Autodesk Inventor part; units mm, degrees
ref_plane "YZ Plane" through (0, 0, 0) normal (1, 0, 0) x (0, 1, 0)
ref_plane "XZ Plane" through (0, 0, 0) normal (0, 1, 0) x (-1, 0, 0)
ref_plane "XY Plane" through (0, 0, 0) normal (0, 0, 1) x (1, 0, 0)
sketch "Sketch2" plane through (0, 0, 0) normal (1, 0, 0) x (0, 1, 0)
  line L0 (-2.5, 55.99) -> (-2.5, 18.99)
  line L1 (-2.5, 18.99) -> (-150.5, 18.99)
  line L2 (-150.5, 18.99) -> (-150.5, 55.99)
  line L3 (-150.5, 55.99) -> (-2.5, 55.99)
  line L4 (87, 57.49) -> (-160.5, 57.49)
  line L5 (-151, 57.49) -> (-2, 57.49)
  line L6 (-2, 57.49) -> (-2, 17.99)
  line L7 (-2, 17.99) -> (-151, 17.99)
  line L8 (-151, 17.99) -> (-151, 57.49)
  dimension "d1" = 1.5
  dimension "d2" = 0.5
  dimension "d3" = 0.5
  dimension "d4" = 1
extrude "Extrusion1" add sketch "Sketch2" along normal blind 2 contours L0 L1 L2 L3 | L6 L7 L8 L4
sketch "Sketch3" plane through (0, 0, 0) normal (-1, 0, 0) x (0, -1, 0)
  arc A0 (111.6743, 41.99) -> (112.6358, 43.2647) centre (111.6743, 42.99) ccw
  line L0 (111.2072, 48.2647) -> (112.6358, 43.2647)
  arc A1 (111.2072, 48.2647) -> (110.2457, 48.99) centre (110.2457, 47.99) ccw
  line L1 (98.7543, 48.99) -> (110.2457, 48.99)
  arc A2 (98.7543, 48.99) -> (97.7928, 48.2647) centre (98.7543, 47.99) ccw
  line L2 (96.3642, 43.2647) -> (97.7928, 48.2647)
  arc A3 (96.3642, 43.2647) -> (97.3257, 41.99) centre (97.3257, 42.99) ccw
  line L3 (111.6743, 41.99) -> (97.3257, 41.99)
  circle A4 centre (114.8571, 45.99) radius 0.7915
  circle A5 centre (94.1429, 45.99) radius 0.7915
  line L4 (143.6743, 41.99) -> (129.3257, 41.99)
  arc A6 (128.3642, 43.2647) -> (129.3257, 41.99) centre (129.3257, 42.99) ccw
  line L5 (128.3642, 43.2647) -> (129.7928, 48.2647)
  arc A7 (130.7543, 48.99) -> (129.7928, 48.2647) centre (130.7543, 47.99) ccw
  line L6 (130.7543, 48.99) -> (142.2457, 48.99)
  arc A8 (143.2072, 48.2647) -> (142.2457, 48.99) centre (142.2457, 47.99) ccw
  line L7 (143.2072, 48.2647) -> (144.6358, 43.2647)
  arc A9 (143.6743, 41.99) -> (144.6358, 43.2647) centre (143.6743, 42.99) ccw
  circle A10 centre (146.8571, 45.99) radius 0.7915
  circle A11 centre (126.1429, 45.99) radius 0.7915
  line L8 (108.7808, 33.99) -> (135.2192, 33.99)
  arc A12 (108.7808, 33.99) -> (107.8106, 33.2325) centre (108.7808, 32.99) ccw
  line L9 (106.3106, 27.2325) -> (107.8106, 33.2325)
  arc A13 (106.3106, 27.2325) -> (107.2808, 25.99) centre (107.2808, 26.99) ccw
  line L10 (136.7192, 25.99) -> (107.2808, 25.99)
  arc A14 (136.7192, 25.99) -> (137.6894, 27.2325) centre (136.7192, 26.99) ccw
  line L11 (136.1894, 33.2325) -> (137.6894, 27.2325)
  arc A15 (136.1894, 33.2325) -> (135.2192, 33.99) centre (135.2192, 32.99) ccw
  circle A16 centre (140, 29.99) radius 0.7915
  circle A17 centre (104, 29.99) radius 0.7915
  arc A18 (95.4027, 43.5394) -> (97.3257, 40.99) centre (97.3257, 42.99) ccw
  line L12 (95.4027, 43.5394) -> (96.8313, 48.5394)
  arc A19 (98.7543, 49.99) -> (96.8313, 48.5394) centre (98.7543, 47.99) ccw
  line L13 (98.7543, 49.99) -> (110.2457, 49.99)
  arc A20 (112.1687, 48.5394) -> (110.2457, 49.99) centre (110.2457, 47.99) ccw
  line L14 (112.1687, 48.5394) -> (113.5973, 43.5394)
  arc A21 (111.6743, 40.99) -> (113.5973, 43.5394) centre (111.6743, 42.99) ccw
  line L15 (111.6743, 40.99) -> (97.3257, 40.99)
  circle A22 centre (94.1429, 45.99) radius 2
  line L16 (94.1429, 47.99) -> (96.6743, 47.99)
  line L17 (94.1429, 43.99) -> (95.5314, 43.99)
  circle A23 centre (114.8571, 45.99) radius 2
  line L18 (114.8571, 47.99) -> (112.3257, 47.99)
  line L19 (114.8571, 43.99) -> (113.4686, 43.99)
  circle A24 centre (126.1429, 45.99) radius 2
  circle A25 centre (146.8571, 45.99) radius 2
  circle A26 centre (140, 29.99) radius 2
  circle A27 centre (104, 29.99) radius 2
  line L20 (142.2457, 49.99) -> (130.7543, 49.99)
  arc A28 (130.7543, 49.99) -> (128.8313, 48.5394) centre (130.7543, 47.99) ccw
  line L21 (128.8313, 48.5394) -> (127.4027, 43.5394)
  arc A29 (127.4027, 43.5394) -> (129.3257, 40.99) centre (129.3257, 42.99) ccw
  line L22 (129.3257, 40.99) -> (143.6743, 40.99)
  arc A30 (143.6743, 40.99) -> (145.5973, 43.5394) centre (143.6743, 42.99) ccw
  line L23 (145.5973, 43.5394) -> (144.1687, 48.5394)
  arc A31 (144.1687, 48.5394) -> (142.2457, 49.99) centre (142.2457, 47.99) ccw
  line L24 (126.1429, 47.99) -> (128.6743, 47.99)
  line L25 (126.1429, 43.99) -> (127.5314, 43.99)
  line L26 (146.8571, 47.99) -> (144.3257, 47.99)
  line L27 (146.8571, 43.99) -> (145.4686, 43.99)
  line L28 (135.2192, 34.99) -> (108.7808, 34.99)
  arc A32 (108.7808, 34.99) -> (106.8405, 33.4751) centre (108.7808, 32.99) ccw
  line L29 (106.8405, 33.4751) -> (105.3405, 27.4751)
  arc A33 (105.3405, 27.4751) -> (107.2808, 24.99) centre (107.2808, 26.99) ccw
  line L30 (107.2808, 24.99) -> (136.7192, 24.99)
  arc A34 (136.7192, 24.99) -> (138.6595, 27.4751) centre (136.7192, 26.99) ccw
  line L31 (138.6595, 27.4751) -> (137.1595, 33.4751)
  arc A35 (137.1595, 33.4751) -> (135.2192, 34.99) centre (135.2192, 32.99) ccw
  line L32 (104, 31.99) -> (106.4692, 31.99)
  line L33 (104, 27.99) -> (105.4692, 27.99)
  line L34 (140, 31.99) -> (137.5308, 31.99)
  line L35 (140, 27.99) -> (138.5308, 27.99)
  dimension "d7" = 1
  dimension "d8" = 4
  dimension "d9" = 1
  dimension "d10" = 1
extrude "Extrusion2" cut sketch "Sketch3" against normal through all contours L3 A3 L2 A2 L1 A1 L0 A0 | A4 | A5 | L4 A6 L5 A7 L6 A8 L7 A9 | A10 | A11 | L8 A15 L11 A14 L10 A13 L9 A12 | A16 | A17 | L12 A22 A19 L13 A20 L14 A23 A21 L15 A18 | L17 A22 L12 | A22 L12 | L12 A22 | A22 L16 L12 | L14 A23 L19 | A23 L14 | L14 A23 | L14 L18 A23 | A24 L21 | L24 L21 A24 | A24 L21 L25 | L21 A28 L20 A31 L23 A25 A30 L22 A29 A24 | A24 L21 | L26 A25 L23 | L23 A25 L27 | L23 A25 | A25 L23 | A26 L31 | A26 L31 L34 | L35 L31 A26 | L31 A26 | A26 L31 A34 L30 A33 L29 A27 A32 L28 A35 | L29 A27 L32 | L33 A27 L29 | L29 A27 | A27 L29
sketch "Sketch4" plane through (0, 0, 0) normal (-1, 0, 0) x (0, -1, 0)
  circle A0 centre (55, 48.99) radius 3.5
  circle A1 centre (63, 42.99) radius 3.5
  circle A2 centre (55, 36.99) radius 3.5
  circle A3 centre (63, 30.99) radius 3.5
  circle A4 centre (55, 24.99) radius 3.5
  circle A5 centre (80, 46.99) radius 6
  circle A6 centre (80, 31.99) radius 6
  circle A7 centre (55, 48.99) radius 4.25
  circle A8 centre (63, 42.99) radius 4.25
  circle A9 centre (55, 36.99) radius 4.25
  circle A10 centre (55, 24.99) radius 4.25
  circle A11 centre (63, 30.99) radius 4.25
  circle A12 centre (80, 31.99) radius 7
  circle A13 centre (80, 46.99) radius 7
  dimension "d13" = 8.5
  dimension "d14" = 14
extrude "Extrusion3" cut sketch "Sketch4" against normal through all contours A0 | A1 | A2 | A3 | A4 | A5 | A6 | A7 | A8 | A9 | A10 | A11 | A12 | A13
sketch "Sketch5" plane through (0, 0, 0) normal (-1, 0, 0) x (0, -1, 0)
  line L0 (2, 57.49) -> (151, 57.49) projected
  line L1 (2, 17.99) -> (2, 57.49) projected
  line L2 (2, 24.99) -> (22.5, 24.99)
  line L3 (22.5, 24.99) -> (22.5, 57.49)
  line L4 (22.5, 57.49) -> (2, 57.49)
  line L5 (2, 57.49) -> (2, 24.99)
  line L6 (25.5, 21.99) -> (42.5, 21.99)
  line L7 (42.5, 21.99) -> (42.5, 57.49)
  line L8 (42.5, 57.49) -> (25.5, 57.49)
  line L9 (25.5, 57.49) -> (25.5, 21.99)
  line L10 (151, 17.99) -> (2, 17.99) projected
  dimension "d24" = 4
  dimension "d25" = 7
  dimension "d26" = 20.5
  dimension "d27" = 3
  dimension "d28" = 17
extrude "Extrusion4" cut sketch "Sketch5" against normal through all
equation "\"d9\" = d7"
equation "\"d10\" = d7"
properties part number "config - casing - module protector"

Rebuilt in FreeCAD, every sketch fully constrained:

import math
import FreeCAD as App
import Part
import Sketcher
from FreeCAD import Vector
Q = App.Units.Quantity

doc = App.newDocument("Part")
body = doc.addObject("PartDesign::Body", "Body")

# Sketch on YZ plane
sketch1 = body.newObject("Sketcher::SketchObject", "Sketch")
sketch1.AttachmentSupport = (doc.getObject("YZ_Plane"), [""])
sketch1.MapMode = "FlatFace"
sketch1.addGeometry([
    Part.LineSegment(Vector(-2, 18, 0), Vector(-2, 57, 0)),
    Part.LineSegment(Vector(-2, 57, 0), Vector(-151, 57, 0)),
    Part.LineSegment(Vector(-151, 57, 0), Vector(-151, 18, 0)),
    Part.LineSegment(Vector(-151, 18, 0), Vector(-2, 18, 0)),
], False)
sketch1.addConstraint([
    Sketcher.Constraint("Coincident", 0, 2, 1, 1),
    Sketcher.Constraint("Coincident", 1, 2, 2, 1),
    Sketcher.Constraint("Coincident", 2, 2, 3, 1),
    Sketcher.Constraint("Coincident", 3, 2, 0, 1),
    Sketcher.Constraint("Vertical", 0),
    Sketcher.Constraint("Horizontal", 1),
    Sketcher.Constraint("Vertical", 2),
    Sketcher.Constraint("Horizontal", 3),
    Sketcher.Constraint("DistanceX", 1, 2, 1, 1, Q("149 mm")),
    Sketcher.Constraint("DistanceY", 0, 1, 0, 2, Q("39.5 mm")),
    Sketcher.Constraint("DistanceX", 0, 2, -1, 1, Q("2 mm")),
    Sketcher.Constraint("DistanceY", -1, 1, 0, 2, Q("57.49 mm")),
])
pad1 = body.newObject("PartDesign::Pad", "Pad")
pad1.Profile = sketch1
pad1.Length = 2

# Sketch on YZ plane
sketch2 = body.newObject("Sketcher::SketchObject", "Sketch001")
sketch2.AttachmentSupport = (doc.getObject("YZ_Plane"), [""])
sketch2.MapMode = "FlatFace"
sketch2.addGeometry([
    Part.LineSegment(Vector(-95.53, 43.99, 0), Vector(-95.4, 43.54, 0)),  # 0
    Part.ArcOfCircle(Part.Circle(Vector(-97.33, 42.99, 0), Vector(0, 0, 1), 2), math.radians(-90), math.radians(16)),  # 1
    Part.LineSegment(Vector(-97.33, 40.99, 0), Vector(-111.67, 40.99, 0)),  # 2
    Part.ArcOfCircle(Part.Circle(Vector(-111.67, 42.99, 0), Vector(0, 0, 1), 2), math.radians(164), math.radians(270)),  # 3
    Part.LineSegment(Vector(-113.6, 43.54, 0), Vector(-113.47, 43.99, 0)),  # 4
    Part.LineSegment(Vector(-113.47, 43.99, 0), Vector(-114.86, 43.99, 0)),  # 5
    Part.ArcOfCircle(Part.Circle(Vector(-114.86, 45.99, 0), Vector(0, 0, 1), 2), math.radians(90), math.radians(270)),  # 6
    Part.LineSegment(Vector(-114.86, 47.99, 0), Vector(-112.33, 47.99, 0)),  # 7
    Part.LineSegment(Vector(-112.33, 47.99, 0), Vector(-112.17, 48.54, 0)),  # 8
    Part.ArcOfCircle(Part.Circle(Vector(-110.25, 47.99, 0), Vector(0, 0, 1), 2), math.radians(90), math.radians(164)),  # 9
    Part.LineSegment(Vector(-110.25, 49.99, 0), Vector(-98.75, 49.99, 0)),  # 10
    Part.ArcOfCircle(Part.Circle(Vector(-98.75, 47.99, 0), Vector(0, 0, 1), 2), math.radians(16), math.radians(90)),  # 11
    Part.LineSegment(Vector(-96.83, 48.54, 0), Vector(-96.67, 47.99, 0)),  # 12
    Part.LineSegment(Vector(-96.67, 47.99, 0), Vector(-94.14, 47.99, 0)),  # 13
    Part.ArcOfCircle(Part.Circle(Vector(-94.14, 45.99, 0), Vector(0, 0, 1), 2), math.radians(-90), math.radians(90)),  # 14
    Part.LineSegment(Vector(-94.14, 43.99, 0), Vector(-95.53, 43.99, 0)),  # 15
    Part.LineSegment(Vector(-128.83, 48.54, 0), Vector(-128.67, 47.99, 0)),  # 16
    Part.LineSegment(Vector(-128.67, 47.99, 0), Vector(-126.14, 47.99, 0)),  # 17
    Part.ArcOfCircle(Part.Circle(Vector(-126.14, 45.99, 0), Vector(0, 0, 1), 2), math.radians(-90), math.radians(90)),  # 18
    Part.LineSegment(Vector(-126.14, 43.99, 0), Vector(-127.53, 43.99, 0)),  # 19
    Part.LineSegment(Vector(-127.53, 43.99, 0), Vector(-127.4, 43.54, 0)),  # 20
    Part.ArcOfCircle(Part.Circle(Vector(-129.33, 42.99, 0), Vector(0, 0, 1), 2), math.radians(-90), math.radians(16)),  # 21
    Part.LineSegment(Vector(-129.33, 40.99, 0), Vector(-143.67, 40.99, 0)),  # 22
    Part.ArcOfCircle(Part.Circle(Vector(-143.67, 42.99, 0), Vector(0, 0, 1), 2), math.radians(164), math.radians(270)),  # 23
    Part.LineSegment(Vector(-145.6, 43.54, 0), Vector(-145.47, 43.99, 0)),  # 24
    Part.LineSegment(Vector(-145.47, 43.99, 0), Vector(-146.86, 43.99, 0)),  # 25
    Part.ArcOfCircle(Part.Circle(Vector(-146.86, 45.99, 0), Vector(0, 0, 1), 2), math.radians(90), math.radians(270)),  # 26
    Part.LineSegment(Vector(-146.86, 47.99, 0), Vector(-144.33, 47.99, 0)),  # 27
    Part.LineSegment(Vector(-144.33, 47.99, 0), Vector(-144.17, 48.54, 0)),  # 28
    Part.ArcOfCircle(Part.Circle(Vector(-142.25, 47.99, 0), Vector(0, 0, 1), 2), math.radians(90), math.radians(164)),  # 29
    Part.LineSegment(Vector(-142.25, 49.99, 0), Vector(-130.75, 49.99, 0)),  # 30
    Part.ArcOfCircle(Part.Circle(Vector(-130.75, 47.99, 0), Vector(0, 0, 1), 2), math.radians(16), math.radians(90)),  # 31
    Part.LineSegment(Vector(-138.66, 27.48, 0), Vector(-138.53, 27.99, 0)),  # 32
    Part.LineSegment(Vector(-138.53, 27.99, 0), Vector(-140, 27.99, 0)),  # 33
    Part.ArcOfCircle(Part.Circle(Vector(-140, 29.99, 0), Vector(0, 0, 1), 2), math.radians(90), math.radians(270)),  # 34
    Part.LineSegment(Vector(-140, 31.99, 0), Vector(-137.53, 31.99, 0)),  # 35
    Part.LineSegment(Vector(-137.53, 31.99, 0), Vector(-137.16, 33.48, 0)),  # 36
    Part.ArcOfCircle(Part.Circle(Vector(-135.22, 32.99, 0), Vector(0, 0, 1), 2), math.radians(90), math.radians(166)),  # 37
    Part.LineSegment(Vector(-135.22, 34.99, 0), Vector(-108.78, 34.99, 0)),  # 38
    Part.ArcOfCircle(Part.Circle(Vector(-108.78, 32.99, 0), Vector(0, 0, 1), 2), math.radians(14), math.radians(90)),  # 39
    Part.LineSegment(Vector(-106.84, 33.48, 0), Vector(-106.47, 31.99, 0)),  # 40
    Part.LineSegment(Vector(-106.47, 31.99, 0), Vector(-104, 31.99, 0)),  # 41
    Part.ArcOfCircle(Part.Circle(Vector(-104, 29.99, 0), Vector(0, 0, 1), 2), math.radians(-90), math.radians(90)),  # 42
    Part.LineSegment(Vector(-104, 27.99, 0), Vector(-105.47, 27.99, 0)),  # 43
    Part.LineSegment(Vector(-105.47, 27.99, 0), Vector(-105.34, 27.48, 0)),  # 44
    Part.ArcOfCircle(Part.Circle(Vector(-107.28, 26.99, 0), Vector(0, 0, 1), 2), math.radians(-90), math.radians(14)),  # 45
    Part.LineSegment(Vector(-107.28, 24.99, 0), Vector(-136.72, 24.99, 0)),  # 46
    Part.ArcOfCircle(Part.Circle(Vector(-136.72, 26.99, 0), Vector(0, 0, 1), 2), math.radians(166), math.radians(270)),  # 47
], False)
sketch2.addConstraint([
    Sketcher.Constraint("Tangent", 0, 2, 1, 2),
    Sketcher.Constraint("Tangent", 1, 1, 2, 1),
    Sketcher.Constraint("Tangent", 2, 2, 3, 2),
    Sketcher.Constraint("Tangent", 3, 1, 4, 1),
    Sketcher.Constraint("Coincident", 4, 2, 5, 1),
    Sketcher.Constraint("Tangent", 5, 2, 6, 2),
    Sketcher.Constraint("Tangent", 6, 1, 7, 1),
    Sketcher.Constraint("Coincident", 7, 2, 8, 1),
    Sketcher.Constraint("Tangent", 8, 2, 9, 2),
    Sketcher.Constraint("Tangent", 9, 1, 10, 1),
    Sketcher.Constraint("Tangent", 10, 2, 11, 2),
    Sketcher.Constraint("Tangent", 11, 1, 12, 1),
    Sketcher.Constraint("Coincident", 12, 2, 13, 1),
    Sketcher.Constraint("Tangent", 13, 2, 14, 2),
    Sketcher.Constraint("Tangent", 14, 1, 15, 1),
    Sketcher.Constraint("Coincident", 15, 2, 0, 1),
    Sketcher.Constraint("Coincident", 16, 2, 17, 1),
    Sketcher.Constraint("Tangent", 17, 2, 18, 2),
    Sketcher.Constraint("Tangent", 18, 1, 19, 1),
    Sketcher.Constraint("Coincident", 19, 2, 20, 1),
    Sketcher.Constraint("Tangent", 20, 2, 21, 2),
    Sketcher.Constraint("Tangent", 21, 1, 22, 1),
    Sketcher.Constraint("Tangent", 22, 2, 23, 2),
    Sketcher.Constraint("Tangent", 23, 1, 24, 1),
    Sketcher.Constraint("Coincident", 24, 2, 25, 1),
    Sketcher.Constraint("Tangent", 25, 2, 26, 2),
    Sketcher.Constraint("Tangent", 26, 1, 27, 1),
    Sketcher.Constraint("Coincident", 27, 2, 28, 1),
    Sketcher.Constraint("Tangent", 28, 2, 29, 2),
    Sketcher.Constraint("Tangent", 29, 1, 30, 1),
    Sketcher.Constraint("Tangent", 30, 2, 31, 2),
    Sketcher.Constraint("Tangent", 31, 1, 16, 1),
    Sketcher.Constraint("Coincident", 32, 2, 33, 1),
    Sketcher.Constraint("Tangent", 33, 2, 34, 2),
    Sketcher.Constraint("Tangent", 34, 1, 35, 1),
    Sketcher.Constraint("Coincident", 35, 2, 36, 1),
    Sketcher.Constraint("Tangent", 36, 2, 37, 2),
    Sketcher.Constraint("Tangent", 37, 1, 38, 1),
    Sketcher.Constraint("Tangent", 38, 2, 39, 2),
    Sketcher.Constraint("Tangent", 39, 1, 40, 1),
    Sketcher.Constraint("Coincident", 40, 2, 41, 1),
    Sketcher.Constraint("Tangent", 41, 2, 42, 2),
    Sketcher.Constraint("Tangent", 42, 1, 43, 1),
    Sketcher.Constraint("Coincident", 43, 2, 44, 1),
    Sketcher.Constraint("Tangent", 44, 2, 45, 2),
    Sketcher.Constraint("Tangent", 45, 1, 46, 1),
    Sketcher.Constraint("Tangent", 46, 2, 47, 2),
    Sketcher.Constraint("Tangent", 47, 1, 32, 1),
    Sketcher.Constraint("Horizontal", 2),
    Sketcher.Constraint("Horizontal", 5),
    Sketcher.Constraint("Horizontal", 7),
    Sketcher.Constraint("Horizontal", 10),
    Sketcher.Constraint("Horizontal", 13),
    Sketcher.Constraint("Horizontal", 15),
    Sketcher.Constraint("Horizontal", 17),
    Sketcher.Constraint("Horizontal", 19),
    Sketcher.Constraint("Horizontal", 22),
    Sketcher.Constraint("Horizontal", 25),
    Sketcher.Constraint("Horizontal", 27),
    Sketcher.Constraint("Horizontal", 30),
    Sketcher.Constraint("Horizontal", 33),
    Sketcher.Constraint("Horizontal", 35),
    Sketcher.Constraint("Horizontal", 38),
    Sketcher.Constraint("Horizontal", 41),
    Sketcher.Constraint("Horizontal", 43),
    Sketcher.Constraint("Horizontal", 46),
    Sketcher.Constraint("Equal", 1, 3),
    Sketcher.Constraint("Equal", 3, 6),
    Sketcher.Constraint("Equal", 6, 9),
    Sketcher.Constraint("Equal", 9, 11),
    Sketcher.Constraint("Equal", 11, 14),
    Sketcher.Constraint("Equal", 14, 18),
    Sketcher.Constraint("Equal", 18, 21),
    Sketcher.Constraint("Equal", 21, 23),
    Sketcher.Constraint("Equal", 23, 26),
    Sketcher.Constraint("Equal", 26, 29),
    Sketcher.Constraint("Equal", 29, 31),
    Sketcher.Constraint("Equal", 31, 34),
    Sketcher.Constraint("Equal", 34, 37),
    Sketcher.Constraint("Equal", 37, 39),
    Sketcher.Constraint("Equal", 39, 42),
    Sketcher.Constraint("Equal", 42, 45),
    Sketcher.Constraint("Equal", 45, 47),
    Sketcher.Constraint("Parallel", 4, 8),
    Sketcher.Constraint("Parallel", 0, 12),
    Sketcher.Constraint("Parallel", 12, 16),
    Sketcher.Constraint("Parallel", 16, 20),
    Sketcher.Constraint("Parallel", 8, 24),
    Sketcher.Constraint("Parallel", 24, 28),
    Sketcher.Constraint("Parallel", 32, 36),
    Sketcher.Constraint("Parallel", 40, 44),
    Sketcher.Constraint("Horizontal", 6, 3, 14, 3),
    Sketcher.Constraint("Horizontal", 14, 3, 18, 3),
    Sketcher.Constraint("Horizontal", 3, 3, 21, 3),
    Sketcher.Constraint("Horizontal", 18, 3, 26, 3),
    Sketcher.Constraint("Horizontal", 11, 3, 29, 3),
    Sketcher.Constraint("Horizontal", 34, 3, 42, 3),
    Sketcher.Constraint("Horizontal", 0, 2, 3, 1),
    Sketcher.Constraint("Horizontal", 31, 3, 6, 1),
    Sketcher.Constraint("Horizontal", 36, 2, 39, 1),
    Sketcher.Constraint("Equal", 7, 13),
    Sketcher.Constraint("Equal", 5, 15),
    Sketcher.Constraint("Equal", 13, 17),
    Sketcher.Constraint("Equal", 15, 19),
    Sketcher.Constraint("Equal", 2, 22),
    Sketcher.Constraint("Equal", 19, 25),
    Sketcher.Constraint("Equal", 17, 27),
    Sketcher.Constraint("Equal", 35, 41),
    Sketcher.Constraint("Equal", 33, 43),
    Sketcher.Constraint("Radius", 1, Q("2 mm")),
    Sketcher.Constraint("DistanceX", 34, 3, -1, 1, Q("140 mm")),
    Sketcher.Constraint("DistanceX", 42, 3, -1, 1, Q("104 mm")),
    Sketcher.Constraint("DistanceY", -1, 1, 1, 3, Q("42.99 mm")),
    Sketcher.Constraint("DistanceY", -1, 1, 6, 3, Q("45.99 mm")),
    Sketcher.Constraint("DistanceY", -1, 1, 34, 3, Q("29.99 mm")),
    Sketcher.Constraint("DistanceY", -1, 1, 37, 3, Q("32.99 mm")),
    Sketcher.Constraint("DistanceY", -1, 1, 45, 3, Q("26.99 mm")),
    Sketcher.Constraint("DistanceX", 2, 2, 2, 1, Q("14.3486 mm")),
    Sketcher.Constraint("DistanceX", 5, 2, 5, 1, Q("1.3885 mm")),
    Sketcher.Constraint("DistanceX", 7, 1, 7, 2, Q("2.5314 mm")),
    Sketcher.Constraint("DistanceX", 10, 1, 10, 2, Q("11.4914 mm")),
    Sketcher.Constraint("DistanceX", 33, 2, 33, 1, Q("1.4692 mm")),
    Sketcher.Constraint("DistanceX", 35, 1, 35, 2, Q("2.4692 mm")),
    Sketcher.Constraint("DistanceX", 38, 1, 38, 2, Q("26.4384 mm")),
    Sketcher.Constraint("DistanceX", 6, 3, -1, 1, Q("114.857 mm")),
    Sketcher.Constraint("DistanceX", 18, 3, -1, 1, Q("126.143 mm")),
])
pocket1 = body.newObject("PartDesign::Pocket", "Pocket")
pocket1.Profile = sketch2
pocket1.Type = "ThroughAll"
pocket1.Reversed = True

# Sketch on YZ plane
sketch3 = body.newObject("Sketcher::SketchObject", "Sketch002")
sketch3.AttachmentSupport = (doc.getObject("YZ_Plane"), [""])
sketch3.MapMode = "FlatFace"
sketch3.addGeometry([
    Part.Circle(Vector(-55, 49, 0), Vector(0, 0, 1), 4.2),  # 0
    Part.Circle(Vector(-63, 43, 0), Vector(0, 0, 1), 4.2),  # 1
    Part.Circle(Vector(-55, 37, 0), Vector(0, 0, 1), 4.2),  # 2
    Part.Circle(Vector(-63, 31, 0), Vector(0, 0, 1), 4.2),  # 3
    Part.Circle(Vector(-55, 25, 0), Vector(0, 0, 1), 4.2),  # 4
    Part.Circle(Vector(-80, 47, 0), Vector(0, 0, 1), 7),  # 5
    Part.Circle(Vector(-80, 32, 0), Vector(0, 0, 1), 7),  # 6
], False)
sketch3.addConstraint([
    Sketcher.Constraint("Equal", 0, 1),
    Sketcher.Constraint("Equal", 1, 2),
    Sketcher.Constraint("Equal", 2, 3),
    Sketcher.Constraint("Equal", 3, 4),
    Sketcher.Constraint("Equal", 5, 6),
    Sketcher.Constraint("Vertical", 0, 3, 2, 3),
    Sketcher.Constraint("Vertical", 1, 3, 3, 3),
    Sketcher.Constraint("Vertical", 2, 3, 4, 3),
    Sketcher.Constraint("Vertical", 5, 3, 6, 3),
    Sketcher.Constraint("Diameter", 5, Q("14 mm")),
    Sketcher.Constraint("Diameter", 0, Q("8.5 mm")),
    Sketcher.Constraint("DistanceX", 0, 3, -1, 1, Q("55 mm")),
    Sketcher.Constraint("DistanceX", 1, 3, -1, 1, Q("63 mm")),
    Sketcher.Constraint("DistanceX", 5, 3, -1, 1, Q("80 mm")),
    Sketcher.Constraint("DistanceY", 1, 3, 0, 3, Q("6 mm")),
    Sketcher.Constraint("DistanceY", 2, 3, 1, 3, Q("6 mm")),
    Sketcher.Constraint("DistanceY", 3, 3, 2, 3, Q("6 mm")),
    Sketcher.Constraint("DistanceY", 4, 3, 3, 3, Q("6 mm")),
    Sketcher.Constraint("DistanceY", 1, 3, 5, 3, Q("4 mm")),
    Sketcher.Constraint("DistanceY", 6, 3, 5, 3, Q("15 mm")),
    Sketcher.Constraint("DistanceY", -1, 1, 0, 3, Q("48.99 mm")),
])
pocket2 = body.newObject("PartDesign::Pocket", "Pocket001")
pocket2.Profile = sketch3
pocket2.Type = "ThroughAll"
pocket2.Reversed = True

# Sketch on YZ plane
sketch4 = body.newObject("Sketcher::SketchObject", "Sketch003")
sketch4.AttachmentSupport = (doc.getObject("YZ_Plane"), [""])
sketch4.MapMode = "FlatFace"
sketch4.addGeometry([
    Part.LineSegment(Vector(-42, 57, 0), Vector(-26, 57, 0)),  # 0
    Part.LineSegment(Vector(-26, 57, 0), Vector(-26, 22, 0)),  # 1
    Part.LineSegment(Vector(-26, 22, 0), Vector(-42, 22, 0)),  # 2
    Part.LineSegment(Vector(-42, 22, 0), Vector(-42, 57, 0)),  # 3
    Part.LineSegment(Vector(-22, 57, 0), Vector(-2, 57, 0)),  # 4
    Part.LineSegment(Vector(-2, 57, 0), Vector(-2, 25, 0)),  # 5
    Part.LineSegment(Vector(-2, 25, 0), Vector(-22, 25, 0)),  # 6
    Part.LineSegment(Vector(-22, 25, 0), Vector(-22, 57, 0)),  # 7
], False)
sketch4.addConstraint([
    Sketcher.Constraint("Coincident", 0, 2, 1, 1),
    Sketcher.Constraint("Coincident", 1, 2, 2, 1),
    Sketcher.Constraint("Coincident", 2, 2, 3, 1),
    Sketcher.Constraint("Coincident", 3, 2, 0, 1),
    Sketcher.Constraint("Coincident", 4, 2, 5, 1),
    Sketcher.Constraint("Coincident", 5, 2, 6, 1),
    Sketcher.Constraint("Coincident", 6, 2, 7, 1),
    Sketcher.Constraint("Coincident", 7, 2, 4, 1),
    Sketcher.Constraint("Horizontal", 0),
    Sketcher.Constraint("Vertical", 1),
    Sketcher.Constraint("Horizontal", 2),
    Sketcher.Constraint("Vertical", 3),
    Sketcher.Constraint("Horizontal", 4),
    Sketcher.Constraint("Vertical", 5),
    Sketcher.Constraint("Horizontal", 6),
    Sketcher.Constraint("Vertical", 7),
    Sketcher.Constraint("Horizontal", 3, 2, 4, 2),
    Sketcher.Constraint("DistanceX", 0, 1, 0, 2, Q("17 mm")),
    Sketcher.Constraint("DistanceX", 4, 1, 4, 2, Q("20.5 mm")),
    Sketcher.Constraint("DistanceY", 1, 2, 5, 2, Q("3 mm")),
    Sketcher.Constraint("DistanceX", 1, 2, 6, 2, Q("3 mm")),
    Sketcher.Constraint("DistanceY", 1, 2, 1, 1, Q("35.5 mm")),
    Sketcher.Constraint("DistanceX", 4, 2, -1, 1, Q("2 mm")),
    Sketcher.Constraint("DistanceY", -1, 1, 0, 2, Q("57.49 mm")),
])
pocket3 = body.newObject("PartDesign::Pocket", "Pocket002")
pocket3.Profile = sketch4
pocket3.Type = "ThroughAll"
pocket3.Reversed = True

doc.recompute()
